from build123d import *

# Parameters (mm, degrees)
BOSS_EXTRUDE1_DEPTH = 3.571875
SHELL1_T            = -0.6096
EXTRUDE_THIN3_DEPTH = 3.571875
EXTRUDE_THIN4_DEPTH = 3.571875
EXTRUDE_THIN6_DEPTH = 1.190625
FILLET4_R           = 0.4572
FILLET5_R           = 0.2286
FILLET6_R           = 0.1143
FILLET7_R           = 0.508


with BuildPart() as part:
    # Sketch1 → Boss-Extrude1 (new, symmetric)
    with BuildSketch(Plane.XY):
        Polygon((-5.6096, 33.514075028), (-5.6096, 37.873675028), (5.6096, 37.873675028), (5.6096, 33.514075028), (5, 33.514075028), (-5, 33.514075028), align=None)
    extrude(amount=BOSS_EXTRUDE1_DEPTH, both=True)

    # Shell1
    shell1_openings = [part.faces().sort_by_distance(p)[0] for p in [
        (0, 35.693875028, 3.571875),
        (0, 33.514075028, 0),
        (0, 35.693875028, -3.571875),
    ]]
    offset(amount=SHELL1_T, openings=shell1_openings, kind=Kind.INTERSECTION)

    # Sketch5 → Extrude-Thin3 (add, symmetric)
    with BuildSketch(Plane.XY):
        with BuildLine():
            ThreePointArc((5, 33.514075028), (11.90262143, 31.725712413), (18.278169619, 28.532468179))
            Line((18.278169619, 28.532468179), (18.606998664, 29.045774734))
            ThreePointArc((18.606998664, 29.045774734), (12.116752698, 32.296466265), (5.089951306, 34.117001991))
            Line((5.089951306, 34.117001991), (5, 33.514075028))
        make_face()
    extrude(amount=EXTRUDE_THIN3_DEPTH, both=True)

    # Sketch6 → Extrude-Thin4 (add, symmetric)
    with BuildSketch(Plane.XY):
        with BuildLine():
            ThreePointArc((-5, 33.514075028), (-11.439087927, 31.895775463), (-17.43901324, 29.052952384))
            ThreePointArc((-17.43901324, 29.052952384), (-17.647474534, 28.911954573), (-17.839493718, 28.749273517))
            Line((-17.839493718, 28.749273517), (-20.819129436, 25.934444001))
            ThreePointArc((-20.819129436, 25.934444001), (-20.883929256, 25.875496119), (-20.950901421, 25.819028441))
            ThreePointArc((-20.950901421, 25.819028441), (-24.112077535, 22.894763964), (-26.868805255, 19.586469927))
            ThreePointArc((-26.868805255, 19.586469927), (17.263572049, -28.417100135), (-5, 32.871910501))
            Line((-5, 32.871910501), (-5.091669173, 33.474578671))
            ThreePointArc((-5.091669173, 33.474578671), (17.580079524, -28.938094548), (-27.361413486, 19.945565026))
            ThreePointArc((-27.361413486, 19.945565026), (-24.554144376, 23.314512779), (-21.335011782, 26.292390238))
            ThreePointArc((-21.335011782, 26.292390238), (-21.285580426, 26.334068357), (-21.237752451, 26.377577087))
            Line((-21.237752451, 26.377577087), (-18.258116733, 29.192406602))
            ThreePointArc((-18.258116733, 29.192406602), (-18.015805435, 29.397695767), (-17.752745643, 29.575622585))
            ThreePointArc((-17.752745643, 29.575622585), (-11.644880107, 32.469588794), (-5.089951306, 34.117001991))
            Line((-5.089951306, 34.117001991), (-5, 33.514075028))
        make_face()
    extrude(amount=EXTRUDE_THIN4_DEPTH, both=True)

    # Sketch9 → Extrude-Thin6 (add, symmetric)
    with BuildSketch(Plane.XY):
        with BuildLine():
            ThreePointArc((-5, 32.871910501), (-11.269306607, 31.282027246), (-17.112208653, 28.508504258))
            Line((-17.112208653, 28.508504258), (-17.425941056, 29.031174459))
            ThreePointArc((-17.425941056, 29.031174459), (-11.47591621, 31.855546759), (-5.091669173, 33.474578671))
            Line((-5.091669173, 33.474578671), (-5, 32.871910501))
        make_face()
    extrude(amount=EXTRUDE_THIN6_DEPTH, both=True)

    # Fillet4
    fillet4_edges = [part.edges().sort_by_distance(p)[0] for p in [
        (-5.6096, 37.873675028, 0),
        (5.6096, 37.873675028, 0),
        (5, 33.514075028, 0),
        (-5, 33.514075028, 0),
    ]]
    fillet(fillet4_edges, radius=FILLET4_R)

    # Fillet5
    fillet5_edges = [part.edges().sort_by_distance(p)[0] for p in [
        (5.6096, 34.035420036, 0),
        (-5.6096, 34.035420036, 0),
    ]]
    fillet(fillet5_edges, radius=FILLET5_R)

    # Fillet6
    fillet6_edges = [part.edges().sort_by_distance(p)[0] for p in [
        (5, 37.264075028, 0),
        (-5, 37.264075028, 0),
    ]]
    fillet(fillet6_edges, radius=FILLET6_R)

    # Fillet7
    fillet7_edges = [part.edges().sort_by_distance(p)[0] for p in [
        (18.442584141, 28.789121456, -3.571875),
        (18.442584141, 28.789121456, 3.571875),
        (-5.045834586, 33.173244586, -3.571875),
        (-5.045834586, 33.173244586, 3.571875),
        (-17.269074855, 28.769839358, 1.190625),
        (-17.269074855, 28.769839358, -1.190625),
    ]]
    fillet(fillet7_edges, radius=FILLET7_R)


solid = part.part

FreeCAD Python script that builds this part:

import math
import FreeCAD as App
import Part
import Sketcher
from FreeCAD import Vector
Q = App.Units.Quantity


def edges_at(feature, points):
    """Names of the edges that pass closest to the given points."""
    edges = feature.Shape.Edges
    near = lambda p: min(range(len(edges)), key=lambda i: edges[i].distToShape(Part.Vertex(*p))[0])
    return sorted({f"Edge{near(p) + 1}" for p in points})


def faces_at(feature, points):
    """Names of the faces that lie closest to the given points."""
    faces = feature.Shape.Faces
    near = lambda p: min(range(len(faces)), key=lambda i: faces[i].distToShape(Part.Vertex(*p))[0])
    return sorted({f"Face{near(p) + 1}" for p in points})


def add_polygon(sketch, points):
    """Adds a closed chain of lines whose ends are joined by coincident constraints."""
    first, n = sketch.GeometryCount, len(points)
    for a, b in zip(points, points[1:] + points[:1]):
        sketch.addGeometry(Part.LineSegment(App.Vector(*a, 0), App.Vector(*b, 0)), False)
    for i in range(n):
        sketch.addConstraint(Sketcher.Constraint("Coincident", first + i, 2, first + (i + 1) % n, 1))

doc = App.newDocument("Part")
params = doc.addObject("Spreadsheet::Sheet", "Params")
for row, (alias, value) in enumerate([
    ("pad1_length", "0.28125 in"),
    ("thickness_wall", "0.024 in"),
    ("pad2_length", "0.28125 in"),
    ("pad3_length", "0.28125 in"),
    ("pad4_length", "0.09375 in"),
    ("fillet_radius", "0.018 in"),
    ("fillet2_radius", "0.009 in"),
    ("fillet3_radius", "0.0045 in"),
    ("fillet4_radius", "0.02 in"),
], start=1):
    params.set(f"A{row}", alias)
    params.set(f"B{row}", "=" + value)
    params.setAlias(f"B{row}", alias)

body = doc.addObject("PartDesign::Body", "Body")

# Sketch on XY plane
sketch1 = body.newObject("Sketcher::SketchObject", "Sketch")
sketch1.AttachmentSupport = (doc.getObject("XY_Plane"), [""])
sketch1.MapMode = "FlatFace"
add_polygon(sketch1, [(-5.6, 37.9), (-5.6, 33.5), (5.6, 33.5), (5.6, 37.9)])  # lines 0-3
sketch1.addConstraint(Sketcher.Constraint("Vertical", 0))
sketch1.addConstraint(Sketcher.Constraint("Horizontal", 1))
sketch1.addConstraint(Sketcher.Constraint("Vertical", 2))
sketch1.addConstraint(Sketcher.Constraint("Horizontal", 3))
sketch1.addConstraint(Sketcher.Constraint("DistanceX", 1, 1, 1, 2, Q("11.2192 mm")))
sketch1.addConstraint(Sketcher.Constraint("DistanceY", 0, 2, 0, 1, Q("4.3596 mm")))
sketch1.addConstraint(Sketcher.Constraint("DistanceX", 0, 2, -1, 1, Q("5.6096 mm")))
sketch1.addConstraint(Sketcher.Constraint("DistanceY", -1, 1, 0, 2, Q("33.514075 mm")))
pad1 = body.newObject("PartDesign::Pad", "Pad")
pad1.Profile = sketch1
pad1.setExpression("Length", "Params.pad1_length")
pad1.Midplane = True
doc.recompute()

thickness = body.newObject("PartDesign::Thickness", "Thickness")
thickness.Base = (pad1, faces_at(pad1, [(0, 35.694, 3.572), (0, 33.514, 0), (0, 35.694, -3.572)]))
thickness.setExpression("Value", "Params.thickness_wall")
thickness.Reversed = True
thickness.Join = "Intersection"

# Sketch on XY plane
sketch2 = body.newObject("Sketcher::SketchObject", "Sketch001")
sketch2.AttachmentSupport = (doc.getObject("XY_Plane"), [""])
sketch2.MapMode = "FlatFace"
sketch2.addGeometry(Part.ArcOfCircle(Part.Circle(Vector(0, 0, 0), Vector(0, 0, 1), 33.9), math.radians(57), math.radians(82)), False)
sketch2.addGeometry(Part.LineSegment(Vector(18.3, 28.5, 0), Vector(18.6, 29, 0)), False)
sketch2.addGeometry(Part.ArcOfCircle(Part.Circle(Vector(0, 0, 0), Vector(0, 0, 1), 34.5), math.radians(57), math.radians(82)), False)
sketch2.addGeometry(Part.LineSegment(Vector(5.1, 34.1, 0), Vector(5, 33.5, 0)), False)
sketch2.addConstraint(Sketcher.Constraint("Coincident", 0, 1, 1, 1))
sketch2.addConstraint(Sketcher.Constraint("Coincident", 1, 2, 2, 1))
sketch2.addConstraint(Sketcher.Constraint("Coincident", 2, 2, 3, 1))
sketch2.addConstraint(Sketcher.Constraint("Coincident", 3, 2, 0, 2))
sketch2.addConstraint(Sketcher.Constraint("Coincident", 0, 3, -1, 1))
sketch2.addConstraint(Sketcher.Constraint("Coincident", 2, 3, -1, 1))
sketch2.addConstraint(Sketcher.Constraint("Radius", 0, Q("33.885 mm")))
sketch2.addConstraint(Sketcher.Constraint("Radius", 2, Q("34.4946 mm")))
sketch2.addConstraint(Sketcher.Constraint("DistanceX", -1, 1, 1, 2, Q("18.606999 mm")))
sketch2.addConstraint(Sketcher.Constraint("DistanceY", -1, 1, 2, 2, Q("34.117002 mm")))
sketch2.addConstraint(Sketcher.Constraint("DistanceX", -1, 1, 3, 2, Q("5 mm")))
sketch2.addConstraint(Sketcher.Constraint("DistanceX", -1, 1, 0, 1, Q("18.27817 mm")))
pad2 = body.newObject("PartDesign::Pad", "Pad001")
pad2.Profile = sketch2
pad2.setExpression("Length", "Params.pad2_length")
pad2.Midplane = True

# Sketch on XY plane
sketch3 = body.newObject("Sketcher::SketchObject", "Sketch002")
sketch3.AttachmentSupport = (doc.getObject("XY_Plane"), [""])
sketch3.MapMode = "FlatFace"
sketch3.addGeometry(Part.ArcOfCircle(Part.Circle(Vector(0, 0, 0), Vector(0, 0, 1), 33.89), math.radians(98), math.radians(121)), False)
sketch3.addGeometry(Part.LineSegment(Vector(-5, 33.51, 0), Vector(-5.09, 34.12, 0)), False)
sketch3.addGeometry(Part.ArcOfCircle(Part.Circle(Vector(0, 0, 0), Vector(0, 0, 1), 34.49), math.radians(98), math.radians(121)), False)
sketch3.addGeometry(Part.ArcOfCircle(Part.Circle(Vector(-16.24, 27.06, 0), Vector(0, 0, 1), 2.94), math.radians(120.97), math.radians(133.37)), False)
sketch3.addGeometry(Part.LineSegment(Vector(-18.26, 29.19, 0), Vector(-21.24, 26.38, 0)), False)
sketch3.addGeometry(Part.ArcOfCircle(Part.Circle(Vector(-22.42, 27.63, 0), Vector(0, 0, 1), 1.72), math.radians(-50.94), math.radians(-46.63)), False)
sketch3.addGeometry(Part.ArcOfCircle(Part.Circle(Vector(0, 0, 0), Vector(0, 0, 1), 33.86), math.radians(129.06), math.radians(143.91)), False)
sketch3.addGeometry(Part.ArcOfCircle(Part.Circle(Vector(0, 0, 0), Vector(0, 0, 1), 33.86), math.radians(144), math.radians(459)), False)
sketch3.addGeometry(Part.LineSegment(Vector(-5.09, 33.47, 0), Vector(-5, 32.87, 0)), False)
sketch3.addGeometry(Part.ArcOfCircle(Part.Circle(Vector(0, 0, 0), Vector(0, 0, 1), 33.25), math.radians(144), math.radians(459)), False)
sketch3.addGeometry(Part.ArcOfCircle(Part.Circle(Vector(0, 0, 0), Vector(0, 0, 1), 33.25), math.radians(129.06), math.radians(143.91)), False)
sketch3.addGeometry(Part.ArcOfCircle(Part.Circle(Vector(-22.42, 27.63, 0), Vector(0, 0, 1), 2.33), math.radians(-50.94), math.radians(-46.63)), False)
sketch3.addGeometry(Part.LineSegment(Vector(-20.82, 25.93, 0), Vector(-17.84, 28.75, 0)), False)
sketch3.addGeometry(Part.ArcOfCircle(Part.Circle(Vector(-16.24, 27.06, 0), Vector(0, 0, 1), 2.33), math.radians(120.97), math.radians(133.37)), False)
sketch3.addConstraint(Sketcher.Constraint("Coincident", 0, 1, 1, 1))
sketch3.addConstraint(Sketcher.Constraint("Coincident", 1, 2, 2, 1))
sketch3.addConstraint(Sketcher.Constraint("Tangent", 2, 2, 3, 1))
sketch3.addConstraint(Sketcher.Constraint("Tangent", 3, 2, 4, 1))
sketch3.addConstraint(Sketcher.Constraint("Tangent", 4, 2, 5, 2))
sketch3.addConstraint(Sketcher.Constraint("Tangent", 5, 1, 6, 1))
sketch3.addConstraint(Sketcher.Constraint("Tangent", 6, 2, 7, 1))
sketch3.addConstraint(Sketcher.Constraint("Coincident", 7, 2, 8, 1))
sketch3.addConstraint(Sketcher.Constraint("Coincident", 8, 2, 9, 2))
sketch3.addConstraint(Sketcher.Constraint("Tangent", 9, 1, 10, 2))
sketch3.addConstraint(Sketcher.Constraint("Tangent", 10, 1, 11, 1))
sketch3.addConstraint(Sketcher.Constraint("Tangent", 11, 2, 12, 1))
sketch3.addConstraint(Sketcher.Constraint("Tangent", 12, 2, 13, 2))
sketch3.addConstraint(Sketcher.Constraint("Tangent", 13, 1, 0, 2))
sketch3.addConstraint(Sketcher.Constraint("Coincident", 0, 3, -1, 1))
sketch3.addConstraint(Sketcher.Constraint("Coincident", 2, 3, -1, 1))
sketch3.addConstraint(Sketcher.Constraint("Coincident", 6, 3, -1, 1))
sketch3.addConstraint(Sketcher.Constraint("Coincident", 9, 3, -1, 1))
sketch3.addConstraint(Sketcher.Constraint("Coincident", 11, 3, 5, 3))
sketch3.addConstraint(Sketcher.Constraint("Coincident", 13, 3, 3, 3))
sketch3.addConstraint(Sketcher.Constraint("Equal", 6, 7))
sketch3.addConstraint(Sketcher.Constraint("Equal", 9, 10))
sketch3.addConstraint(Sketcher.Constraint("Equal", 11, 13))
sketch3.addConstraint(Sketcher.Constraint("Parallel", 4, 12))
sketch3.addConstraint(Sketcher.Constraint("Vertical", 0, 1, 8, 2))
sketch3.addConstraint(Sketcher.Constraint("Radius", 0, Q("33.885 mm")))
sketch3.addConstraint(Sketcher.Constraint("Radius", 2, Q("34.4946 mm")))
sketch3.addConstraint(Sketcher.Constraint("Radius", 3, Q("2.9371 mm")))
sketch3.addConstraint(Sketcher.Constraint("Radius", 6, Q("33.8596 mm")))
sketch3.addConstraint(Sketcher.Constraint("DistanceX", 0, 1, -1, 1, Q("5 mm")))
sketch3.addConstraint(Sketcher.Constraint("DistanceY", -1, 1, 1, 2, Q("34.117002 mm")))
sketch3.addConstraint(Sketcher.Constraint("DistanceX", 10, 1, -1, 1, Q("20.950901 mm")))
sketch3.addConstraint(Sketcher.Constraint("DistanceX", 6, 2, 5, 1, Q("6.026402 mm")))
sketch3.addConstraint(Sketcher.Constraint("DistanceX", 3, 3, -1, 1, Q("16.241159 mm")))
sketch3.addConstraint(Sketcher.Constraint("DistanceX", 7, 2, -1, 1, Q("5.091669 mm")))
sketch3.addConstraint(Sketcher.Constraint("DistanceY", -1, 1, 9, 1, Q("19.58647 mm")))
pad3 = body.newObject("PartDesign::Pad", "Pad002")
pad3.Profile = sketch3
pad3.setExpression("Length", "Params.pad3_length")
pad3.Midplane = True

# Sketch on XY plane
sketch4 = body.newObject("Sketcher::SketchObject", "Sketch003")
sketch4.AttachmentSupport = (doc.getObject("XY_Plane"), [""])
sketch4.MapMode = "FlatFace"
sketch4.addGeometry(Part.ArcOfCircle(Part.Circle(Vector(0, 0, 0), Vector(0, 0, 1), 33.2), math.radians(99), math.radians(121)), False)
sketch4.addGeometry(Part.LineSegment(Vector(-5, 32.9, 0), Vector(-5.1, 33.5, 0)), False)
sketch4.addGeometry(Part.ArcOfCircle(Part.Circle(Vector(0, 0, 0), Vector(0, 0, 1), 33.9), math.radians(99), math.radians(121)), False)
sketch4.addGeometry(Part.LineSegment(Vector(-17.4, 29, 0), Vector(-17.1, 28.5, 0)), False)
sketch4.addConstraint(Sketcher.Constraint("Coincident", 0, 1, 1, 1))
sketch4.addConstraint(Sketcher.Constraint("Coincident", 1, 2, 2, 1))
sketch4.addConstraint(Sketcher.Constraint("Coincident", 2, 2, 3, 1))
sketch4.addConstraint(Sketcher.Constraint("Coincident", 3, 2, 0, 2))
sketch4.addConstraint(Sketcher.Constraint("Coincident", 0, 3, -1, 1))
sketch4.addConstraint(Sketcher.Constraint("Coincident", 2, 3, -1, 1))
sketch4.addConstraint(Sketcher.Constraint("Radius", 0, Q("33.25 mm")))
sketch4.addConstraint(Sketcher.Constraint("Radius", 2, Q("33.8596 mm")))
sketch4.addConstraint(Sketcher.Constraint("DistanceX", 0, 1, -1, 1, Q("5 mm")))
sketch4.addConstraint(Sketcher.Constraint("DistanceX", 1, 2, -1, 1, Q("5.091669 mm")))
sketch4.addConstraint(Sketcher.Constraint("DistanceX", 2, 2, -1, 1, Q("17.425941 mm")))
sketch4.addConstraint(Sketcher.Constraint("DistanceX", 3, 2, -1, 1, Q("17.112209 mm")))
pad4 = body.newObject("PartDesign::Pad", "Pad003")
pad4.Profile = sketch4
pad4.setExpression("Length", "Params.pad4_length")
pad4.Midplane = True
doc.recompute()

fillet = body.newObject("PartDesign::Fillet", "Fillet")
fillet.Base = (pad4, edges_at(pad4, [
    (-5.61, 37.874, 0),
    (5.61, 37.874, 0),
    (5, 33.514, 0),
    (-5, 33.514, 0),
]))
fillet.setExpression("Radius", "Params.fillet_radius")
doc.recompute()

fillet2 = body.newObject("PartDesign::Fillet", "Fillet001")
fillet2.Base = (fillet, edges_at(fillet, [(5.61, 34.035, 0), (-5.61, 34.035, 0)]))
fillet2.setExpression("Radius", "Params.fillet2_radius")
doc.recompute()

fillet3 = body.newObject("PartDesign::Fillet", "Fillet002")
fillet3.Base = (fillet2, edges_at(fillet2, [(5, 37.264, 0), (-5, 37.264, 0)]))
fillet3.setExpression("Radius", "Params.fillet3_radius")
doc.recompute()

fillet4 = body.newObject("PartDesign::Fillet", "Fillet003")
fillet4.Base = (fillet3, edges_at(fillet3, [
    (18.443, 28.789, -3.572),
    (18.443, 28.789, 3.572),
    (-5.046, 33.173, -3.572),
    (-5.046, 33.173, 3.572),
    (-17.269, 28.77, 1.191),
    (-17.269, 28.77, -1.191),
]))
fillet4.setExpression("Radius", "Params.fillet4_radius")

doc.recompute()
